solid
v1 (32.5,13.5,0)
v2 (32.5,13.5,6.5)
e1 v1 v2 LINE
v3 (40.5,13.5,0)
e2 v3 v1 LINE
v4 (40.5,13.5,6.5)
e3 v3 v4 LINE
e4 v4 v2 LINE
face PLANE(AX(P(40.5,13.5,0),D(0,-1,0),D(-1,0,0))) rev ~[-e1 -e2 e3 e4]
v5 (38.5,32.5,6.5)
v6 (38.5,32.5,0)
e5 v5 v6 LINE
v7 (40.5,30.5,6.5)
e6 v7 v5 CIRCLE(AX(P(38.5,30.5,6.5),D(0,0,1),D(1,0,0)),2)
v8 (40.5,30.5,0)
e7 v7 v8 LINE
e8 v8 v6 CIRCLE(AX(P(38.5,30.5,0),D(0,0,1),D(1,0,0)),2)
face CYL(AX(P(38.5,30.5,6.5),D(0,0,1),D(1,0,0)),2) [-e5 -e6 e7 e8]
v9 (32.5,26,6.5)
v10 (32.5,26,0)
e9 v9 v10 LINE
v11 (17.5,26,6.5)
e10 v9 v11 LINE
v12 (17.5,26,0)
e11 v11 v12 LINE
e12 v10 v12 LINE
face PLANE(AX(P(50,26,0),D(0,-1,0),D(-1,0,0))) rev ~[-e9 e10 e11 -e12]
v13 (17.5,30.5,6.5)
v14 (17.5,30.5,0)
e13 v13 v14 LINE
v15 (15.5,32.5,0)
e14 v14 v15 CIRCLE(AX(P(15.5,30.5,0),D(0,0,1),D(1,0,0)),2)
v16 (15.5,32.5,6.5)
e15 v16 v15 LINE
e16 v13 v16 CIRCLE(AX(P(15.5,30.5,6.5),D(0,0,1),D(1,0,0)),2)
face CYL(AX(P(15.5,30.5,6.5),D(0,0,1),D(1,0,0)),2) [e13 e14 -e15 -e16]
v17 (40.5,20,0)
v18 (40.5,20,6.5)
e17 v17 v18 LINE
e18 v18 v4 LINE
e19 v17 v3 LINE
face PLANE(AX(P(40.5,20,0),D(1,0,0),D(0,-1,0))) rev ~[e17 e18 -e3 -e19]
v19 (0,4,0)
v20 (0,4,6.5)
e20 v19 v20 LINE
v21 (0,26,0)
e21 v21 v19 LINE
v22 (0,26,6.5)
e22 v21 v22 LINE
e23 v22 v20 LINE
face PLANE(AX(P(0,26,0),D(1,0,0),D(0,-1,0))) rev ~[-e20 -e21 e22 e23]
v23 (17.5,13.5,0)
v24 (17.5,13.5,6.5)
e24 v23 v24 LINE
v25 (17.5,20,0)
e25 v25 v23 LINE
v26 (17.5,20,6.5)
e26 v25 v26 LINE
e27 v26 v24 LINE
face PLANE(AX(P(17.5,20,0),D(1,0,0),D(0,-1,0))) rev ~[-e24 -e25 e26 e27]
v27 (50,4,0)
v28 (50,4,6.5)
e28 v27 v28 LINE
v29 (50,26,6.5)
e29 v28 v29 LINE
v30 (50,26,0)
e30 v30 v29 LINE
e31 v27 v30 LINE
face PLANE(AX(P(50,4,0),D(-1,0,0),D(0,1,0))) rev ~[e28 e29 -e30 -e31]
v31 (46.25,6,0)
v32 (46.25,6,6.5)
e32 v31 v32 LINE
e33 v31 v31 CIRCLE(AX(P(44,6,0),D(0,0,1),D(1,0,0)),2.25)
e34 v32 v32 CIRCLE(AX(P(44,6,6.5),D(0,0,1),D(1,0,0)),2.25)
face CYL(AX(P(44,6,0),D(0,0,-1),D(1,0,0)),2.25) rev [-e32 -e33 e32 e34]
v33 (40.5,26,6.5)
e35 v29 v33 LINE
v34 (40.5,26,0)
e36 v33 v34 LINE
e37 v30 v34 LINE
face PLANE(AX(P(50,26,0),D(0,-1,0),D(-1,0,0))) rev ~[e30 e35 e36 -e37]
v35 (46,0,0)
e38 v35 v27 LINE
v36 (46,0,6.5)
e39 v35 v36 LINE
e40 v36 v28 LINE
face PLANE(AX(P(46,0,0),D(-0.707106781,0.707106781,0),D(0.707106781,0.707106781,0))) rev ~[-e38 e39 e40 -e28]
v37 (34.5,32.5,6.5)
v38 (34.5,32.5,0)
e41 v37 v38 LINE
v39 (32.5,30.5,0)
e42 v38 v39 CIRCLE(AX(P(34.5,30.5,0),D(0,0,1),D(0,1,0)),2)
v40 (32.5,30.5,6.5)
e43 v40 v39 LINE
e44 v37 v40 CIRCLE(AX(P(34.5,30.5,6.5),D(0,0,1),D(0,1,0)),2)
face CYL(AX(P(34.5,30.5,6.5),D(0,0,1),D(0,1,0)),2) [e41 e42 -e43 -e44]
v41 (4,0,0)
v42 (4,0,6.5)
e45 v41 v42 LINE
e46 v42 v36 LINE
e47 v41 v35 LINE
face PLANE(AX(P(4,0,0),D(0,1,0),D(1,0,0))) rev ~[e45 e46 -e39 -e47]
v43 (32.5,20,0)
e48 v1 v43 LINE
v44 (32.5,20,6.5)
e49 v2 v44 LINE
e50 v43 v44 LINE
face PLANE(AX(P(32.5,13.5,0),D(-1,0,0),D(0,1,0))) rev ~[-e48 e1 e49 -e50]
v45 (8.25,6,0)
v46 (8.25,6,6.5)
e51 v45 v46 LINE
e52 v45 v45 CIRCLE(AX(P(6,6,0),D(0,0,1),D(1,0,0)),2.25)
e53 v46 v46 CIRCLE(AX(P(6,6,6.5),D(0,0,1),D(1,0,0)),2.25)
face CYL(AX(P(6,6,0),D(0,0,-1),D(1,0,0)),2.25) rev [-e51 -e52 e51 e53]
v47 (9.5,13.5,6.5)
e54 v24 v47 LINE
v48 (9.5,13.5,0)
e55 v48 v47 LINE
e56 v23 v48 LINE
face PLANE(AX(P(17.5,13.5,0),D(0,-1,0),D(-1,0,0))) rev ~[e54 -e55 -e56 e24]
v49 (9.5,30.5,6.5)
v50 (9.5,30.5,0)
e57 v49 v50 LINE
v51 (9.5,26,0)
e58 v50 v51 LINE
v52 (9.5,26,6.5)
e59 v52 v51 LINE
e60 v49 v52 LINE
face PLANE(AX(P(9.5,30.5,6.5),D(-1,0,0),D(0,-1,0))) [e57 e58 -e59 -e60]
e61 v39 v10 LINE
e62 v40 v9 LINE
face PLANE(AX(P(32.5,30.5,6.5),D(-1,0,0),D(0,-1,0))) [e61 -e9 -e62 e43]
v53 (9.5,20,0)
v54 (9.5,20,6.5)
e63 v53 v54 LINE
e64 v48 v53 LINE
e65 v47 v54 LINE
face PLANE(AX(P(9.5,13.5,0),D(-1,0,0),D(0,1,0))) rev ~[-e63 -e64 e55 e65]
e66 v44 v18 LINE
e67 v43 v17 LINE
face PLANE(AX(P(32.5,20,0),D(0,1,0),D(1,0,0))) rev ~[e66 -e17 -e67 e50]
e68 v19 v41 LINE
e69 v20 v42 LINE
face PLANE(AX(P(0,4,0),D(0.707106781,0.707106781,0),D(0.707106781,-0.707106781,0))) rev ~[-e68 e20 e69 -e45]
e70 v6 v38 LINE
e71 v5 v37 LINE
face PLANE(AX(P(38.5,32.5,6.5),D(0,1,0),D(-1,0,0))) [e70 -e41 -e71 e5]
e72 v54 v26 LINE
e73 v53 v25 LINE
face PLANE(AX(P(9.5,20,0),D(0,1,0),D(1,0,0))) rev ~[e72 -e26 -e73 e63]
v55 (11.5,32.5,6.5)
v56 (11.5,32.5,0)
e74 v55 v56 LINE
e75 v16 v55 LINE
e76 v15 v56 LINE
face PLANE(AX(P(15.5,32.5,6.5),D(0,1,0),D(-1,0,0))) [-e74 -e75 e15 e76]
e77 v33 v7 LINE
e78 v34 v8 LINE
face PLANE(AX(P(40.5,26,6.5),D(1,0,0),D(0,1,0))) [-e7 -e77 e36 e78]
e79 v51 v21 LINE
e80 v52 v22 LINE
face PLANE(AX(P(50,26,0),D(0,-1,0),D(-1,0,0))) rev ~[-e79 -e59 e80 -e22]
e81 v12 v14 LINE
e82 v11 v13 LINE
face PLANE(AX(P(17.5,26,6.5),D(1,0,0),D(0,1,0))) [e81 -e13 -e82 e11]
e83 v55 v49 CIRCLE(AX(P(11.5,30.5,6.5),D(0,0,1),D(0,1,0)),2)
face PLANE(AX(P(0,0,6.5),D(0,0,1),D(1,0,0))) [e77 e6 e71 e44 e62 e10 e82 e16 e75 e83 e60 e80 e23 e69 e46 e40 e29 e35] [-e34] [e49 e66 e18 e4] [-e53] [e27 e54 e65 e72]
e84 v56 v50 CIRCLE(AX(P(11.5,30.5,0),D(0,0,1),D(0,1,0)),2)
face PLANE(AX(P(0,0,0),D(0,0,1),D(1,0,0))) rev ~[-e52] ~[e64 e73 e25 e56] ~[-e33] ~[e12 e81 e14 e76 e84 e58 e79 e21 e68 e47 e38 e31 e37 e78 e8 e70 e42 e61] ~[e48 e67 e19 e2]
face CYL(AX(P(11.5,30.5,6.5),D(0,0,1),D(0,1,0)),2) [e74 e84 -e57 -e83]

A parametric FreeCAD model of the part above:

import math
import FreeCAD as App
import Part
import Sketcher
from FreeCAD import Vector
Q = App.Units.Quantity

doc = App.newDocument("Part")
params = doc.addObject("Spreadsheet::Sheet", "Params")
for row, (alias, value) in enumerate([
    ("sketch1_diameter", "4.5 mm"),
    ("sketch1_width", "50 mm"),
    ("sketch1_width2", "8 mm"),
    ("sketch1_height", "6.5 mm"),
    ("pad1_length", "6.5 mm"),
    ("sketch2_radius", "2 mm"),
    ("sketch2_width", "8 mm"),
    ("pad2_length", "6.5 mm"),
], start=1):
    params.set(f"A{row}", alias)
    params.set(f"B{row}", "=" + value)
    params.setAlias(f"B{row}", alias)

body = doc.addObject("PartDesign::Body", "Body")

# Sketch on XY plane
sketch1 = body.newObject("Sketcher::SketchObject", "Sketch")
sketch1.AttachmentSupport = (doc.getObject("XY_Plane"), [""])
sketch1.MapMode = "FlatFace"
sketch1.addGeometry([
    Part.LineSegment(Vector(0, 4, 0), Vector(4, 0, 0)),  # 0
    Part.LineSegment(Vector(4, 0, 0), Vector(46, 0, 0)),  # 1
    Part.LineSegment(Vector(46, 0, 0), Vector(50, 4, 0)),  # 2
    Part.LineSegment(Vector(50, 4, 0), Vector(50, 26, 0)),  # 3
    Part.LineSegment(Vector(50, 26, 0), Vector(0, 26, 0)),  # 4
    Part.LineSegment(Vector(0, 26, 0), Vector(0, 4, 0)),  # 5
    Part.Circle(Vector(6, 6, 0), Vector(0, 0, 1), 2.25),  # 6
    Part.Circle(Vector(44, 6, 0), Vector(0, 0, 1), 2.25),  # 7
    Part.LineSegment(Vector(9.5, 13.5, 0), Vector(9.5, 20, 0)),  # 8
    Part.LineSegment(Vector(9.5, 20, 0), Vector(17.5, 20, 0)),  # 9
    Part.LineSegment(Vector(17.5, 20, 0), Vector(17.5, 13.5, 0)),  # 10
    Part.LineSegment(Vector(17.5, 13.5, 0), Vector(9.5, 13.5, 0)),  # 11
    Part.LineSegment(Vector(32.5, 13.5, 0), Vector(32.5, 20, 0)),  # 12
    Part.LineSegment(Vector(32.5, 20, 0), Vector(40.5, 20, 0)),  # 13
    Part.LineSegment(Vector(40.5, 20, 0), Vector(40.5, 13.5, 0)),  # 14
    Part.LineSegment(Vector(40.5, 13.5, 0), Vector(32.5, 13.5, 0)),  # 15
], False)
sketch1.addConstraint([
    Sketcher.Constraint("Coincident", 0, 2, 1, 1),
    Sketcher.Constraint("Coincident", 1, 2, 2, 1),
    Sketcher.Constraint("Coincident", 2, 2, 3, 1),
    Sketcher.Constraint("Coincident", 3, 2, 4, 1),
    Sketcher.Constraint("Coincident", 4, 2, 5, 1),
    Sketcher.Constraint("Coincident", 5, 2, 0, 1),
    Sketcher.Constraint("Coincident", 8, 2, 9, 1),
    Sketcher.Constraint("Coincident", 9, 2, 10, 1),
    Sketcher.Constraint("Coincident", 10, 2, 11, 1),
    Sketcher.Constraint("Coincident", 11, 2, 8, 1),
    Sketcher.Constraint("Coincident", 12, 2, 13, 1),
    Sketcher.Constraint("Coincident", 13, 2, 14, 1),
    Sketcher.Constraint("Coincident", 14, 2, 15, 1),
    Sketcher.Constraint("Coincident", 15, 2, 12, 1),
    Sketcher.Constraint("Horizontal", 1),
    Sketcher.Constraint("Vertical", 3),
    Sketcher.Constraint("Horizontal", 4),
    Sketcher.Constraint("Vertical", 5),
    Sketcher.Constraint("Vertical", 8),
    Sketcher.Constraint("Horizontal", 9),
    Sketcher.Constraint("Vertical", 10),
    Sketcher.Constraint("Horizontal", 11),
    Sketcher.Constraint("Vertical", 12),
    Sketcher.Constraint("Horizontal", 13),
    Sketcher.Constraint("Vertical", 14),
    Sketcher.Constraint("Horizontal", 15),
    Sketcher.Constraint("Equal", 6, 7),
    Sketcher.Constraint("PointOnObject", 0, 2, -1),
    Sketcher.Constraint("PointOnObject", 4, 2, -2),
    Sketcher.Constraint("Perpendicular", 0, 2),
    Sketcher.Constraint("Horizontal", 6, 3, 7, 3),
    Sketcher.Constraint("Horizontal", 2, 2, 5, 2),
    Sketcher.Constraint("Horizontal", 9, 2, 12, 2),
    Sketcher.Constraint("Horizontal", 11, 2, 14, 2),
    Sketcher.Constraint("Equal", 11, 13),
    Sketcher.Constraint("Equal", 0, 2),
    Sketcher.Constraint("Diameter", 6, Q("4.5 mm")),
    Sketcher.Constraint("DistanceX", 4, 2, 4, 1, Q("50 mm")),
    Sketcher.Constraint("DistanceX", 9, 1, 9, 2, Q("8 mm")),
    Sketcher.Constraint("DistanceY", 8, 1, 8, 2, Q("6.5 mm")),
    Sketcher.Constraint("DistanceX", -1, 1, 6, 3, Q("6 mm")),
    Sketcher.Constraint("DistanceY", -1, 1, 6, 3, Q("6 mm")),
    Sketcher.Constraint("DistanceX", -1, 1, 0, 2, Q("4 mm")),
    Sketcher.Constraint("DistanceY", -1, 1, 3, 2, Q("26 mm")),
    Sketcher.Constraint("DistanceY", -1, 1, 8, 2, Q("20 mm")),
    Sketcher.Constraint("DistanceX", 7, 3, 2, 2, Q("6 mm")),
    Sketcher.Constraint("DistanceX", 9, 2, 12, 2, Q("15 mm")),
    Sketcher.Constraint("DistanceX", -1, 1, 8, 2, Q("9.5 mm")),
])
sketch1.setExpression("Constraints[36]", "Params.sketch1_diameter")
sketch1.setExpression("Constraints[37]", "Params.sketch1_width")
sketch1.setExpression("Constraints[38]", "Params.sketch1_width2")
sketch1.setExpression("Constraints[39]", "Params.sketch1_height")
pad1 = body.newObject("PartDesign::Pad", "Pad")
pad1.Profile = sketch1
pad1.setExpression("Length", "Params.pad1_length")

# Sketch on XY plane
sketch2 = body.newObject("Sketcher::SketchObject", "Sketch001")
sketch2.AttachmentSupport = (doc.getObject("XY_Plane"), [""])
sketch2.MapMode = "FlatFace"
sketch2.AttachmentOffset = App.Placement(Vector(0, 0, 6.5), App.Rotation())
sketch2.addGeometry([
    Part.LineSegment(Vector(9.5, 26, 0), Vector(17.5, 26, 0)),  # 0
    Part.LineSegment(Vector(17.5, 26, 0), Vector(17.5, 30.5, 0)),  # 1
    Part.ArcOfCircle(Part.Circle(Vector(15.5, 30.5, 0), Vector(0, 0, 1), 2), math.radians(0), math.radians(90)),  # 2
    Part.LineSegment(Vector(15.5, 32.5, 0), Vector(11.5, 32.5, 0)),  # 3
    Part.ArcOfCircle(Part.Circle(Vector(11.5, 30.5, 0), Vector(0, 0, 1), 2), math.radians(90), math.radians(180)),  # 4
    Part.LineSegment(Vector(9.5, 30.5, 0), Vector(9.5, 26, 0)),  # 5
    Part.LineSegment(Vector(32.5, 26, 0), Vector(40.5, 26, 0)),  # 6
    Part.LineSegment(Vector(40.5, 26, 0), Vector(40.5, 30.5, 0)),  # 7
    Part.ArcOfCircle(Part.Circle(Vector(38.5, 30.5, 0), Vector(0, 0, 1), 2), math.radians(0), math.radians(90)),  # 8
    Part.LineSegment(Vector(38.5, 32.5, 0), Vector(34.5, 32.5, 0)),  # 9
    Part.ArcOfCircle(Part.Circle(Vector(34.5, 30.5, 0), Vector(0, 0, 1), 2), math.radians(90), math.radians(180)),  # 10
    Part.LineSegment(Vector(32.5, 30.5, 0), Vector(32.5, 26, 0)),  # 11
], False)
sketch2.addConstraint([
    Sketcher.Constraint("Coincident", 0, 2, 1, 1),
    Sketcher.Constraint("Tangent", 1, 2, 2, 1),
    Sketcher.Constraint("Tangent", 2, 2, 3, 1),
    Sketcher.Constraint("Tangent", 3, 2, 4, 1),
    Sketcher.Constraint("Tangent", 4, 2, 5, 1),
    Sketcher.Constraint("Coincident", 5, 2, 0, 1),
    Sketcher.Constraint("Coincident", 6, 2, 7, 1),
    Sketcher.Constraint("Tangent", 7, 2, 8, 1),
    Sketcher.Constraint("Tangent", 8, 2, 9, 1),
    Sketcher.Constraint("Tangent", 9, 2, 10, 1),
    Sketcher.Constraint("Tangent", 10, 2, 11, 1),
    Sketcher.Constraint("Coincident", 11, 2, 6, 1),
    Sketcher.Constraint("Horizontal", 0),
    Sketcher.Constraint("Vertical", 1),
    Sketcher.Constraint("Horizontal", 3),
    Sketcher.Constraint("Vertical", 5),
    Sketcher.Constraint("Horizontal", 6),
    Sketcher.Constraint("Vertical", 7),
    Sketcher.Constraint("Horizontal", 9),
    Sketcher.Constraint("Vertical", 11),
    Sketcher.Constraint("Equal", 2, 4),
    Sketcher.Constraint("Equal", 4, 8),
    Sketcher.Constraint("Equal", 8, 10),
    Sketcher.Constraint("Horizontal", 4, 3, 8, 3),
    Sketcher.Constraint("Horizontal", 5, 2, 6, 2),
    Sketcher.Constraint("Equal", 0, 6),
    Sketcher.Constraint("Radius", 2, Q("2 mm")),
    Sketcher.Constraint("DistanceX", 0, 1, 0, 2, Q("8 mm")),
    Sketcher.Constraint("DistanceY", 0, 2, 2, 2, Q("6.5 mm")),
    Sketcher.Constraint("DistanceY", -1, 1, 0, 2, Q("26 mm")),
    Sketcher.Constraint("DistanceX", 2, 3, 8, 3, Q("23 mm")),
    Sketcher.Constraint("DistanceX", -1, 1, 2, 3, Q("15.5 mm")),
])
sketch2.setExpression("Constraints[26]", "Params.sketch2_radius")
sketch2.setExpression("Constraints[27]", "Params.sketch2_width")
pad2 = body.newObject("PartDesign::Pad", "Pad001")
pad2.Profile = sketch2
pad2.setExpression("Length", "Params.pad2_length")
pad2.Reversed = True

doc.recompute()
